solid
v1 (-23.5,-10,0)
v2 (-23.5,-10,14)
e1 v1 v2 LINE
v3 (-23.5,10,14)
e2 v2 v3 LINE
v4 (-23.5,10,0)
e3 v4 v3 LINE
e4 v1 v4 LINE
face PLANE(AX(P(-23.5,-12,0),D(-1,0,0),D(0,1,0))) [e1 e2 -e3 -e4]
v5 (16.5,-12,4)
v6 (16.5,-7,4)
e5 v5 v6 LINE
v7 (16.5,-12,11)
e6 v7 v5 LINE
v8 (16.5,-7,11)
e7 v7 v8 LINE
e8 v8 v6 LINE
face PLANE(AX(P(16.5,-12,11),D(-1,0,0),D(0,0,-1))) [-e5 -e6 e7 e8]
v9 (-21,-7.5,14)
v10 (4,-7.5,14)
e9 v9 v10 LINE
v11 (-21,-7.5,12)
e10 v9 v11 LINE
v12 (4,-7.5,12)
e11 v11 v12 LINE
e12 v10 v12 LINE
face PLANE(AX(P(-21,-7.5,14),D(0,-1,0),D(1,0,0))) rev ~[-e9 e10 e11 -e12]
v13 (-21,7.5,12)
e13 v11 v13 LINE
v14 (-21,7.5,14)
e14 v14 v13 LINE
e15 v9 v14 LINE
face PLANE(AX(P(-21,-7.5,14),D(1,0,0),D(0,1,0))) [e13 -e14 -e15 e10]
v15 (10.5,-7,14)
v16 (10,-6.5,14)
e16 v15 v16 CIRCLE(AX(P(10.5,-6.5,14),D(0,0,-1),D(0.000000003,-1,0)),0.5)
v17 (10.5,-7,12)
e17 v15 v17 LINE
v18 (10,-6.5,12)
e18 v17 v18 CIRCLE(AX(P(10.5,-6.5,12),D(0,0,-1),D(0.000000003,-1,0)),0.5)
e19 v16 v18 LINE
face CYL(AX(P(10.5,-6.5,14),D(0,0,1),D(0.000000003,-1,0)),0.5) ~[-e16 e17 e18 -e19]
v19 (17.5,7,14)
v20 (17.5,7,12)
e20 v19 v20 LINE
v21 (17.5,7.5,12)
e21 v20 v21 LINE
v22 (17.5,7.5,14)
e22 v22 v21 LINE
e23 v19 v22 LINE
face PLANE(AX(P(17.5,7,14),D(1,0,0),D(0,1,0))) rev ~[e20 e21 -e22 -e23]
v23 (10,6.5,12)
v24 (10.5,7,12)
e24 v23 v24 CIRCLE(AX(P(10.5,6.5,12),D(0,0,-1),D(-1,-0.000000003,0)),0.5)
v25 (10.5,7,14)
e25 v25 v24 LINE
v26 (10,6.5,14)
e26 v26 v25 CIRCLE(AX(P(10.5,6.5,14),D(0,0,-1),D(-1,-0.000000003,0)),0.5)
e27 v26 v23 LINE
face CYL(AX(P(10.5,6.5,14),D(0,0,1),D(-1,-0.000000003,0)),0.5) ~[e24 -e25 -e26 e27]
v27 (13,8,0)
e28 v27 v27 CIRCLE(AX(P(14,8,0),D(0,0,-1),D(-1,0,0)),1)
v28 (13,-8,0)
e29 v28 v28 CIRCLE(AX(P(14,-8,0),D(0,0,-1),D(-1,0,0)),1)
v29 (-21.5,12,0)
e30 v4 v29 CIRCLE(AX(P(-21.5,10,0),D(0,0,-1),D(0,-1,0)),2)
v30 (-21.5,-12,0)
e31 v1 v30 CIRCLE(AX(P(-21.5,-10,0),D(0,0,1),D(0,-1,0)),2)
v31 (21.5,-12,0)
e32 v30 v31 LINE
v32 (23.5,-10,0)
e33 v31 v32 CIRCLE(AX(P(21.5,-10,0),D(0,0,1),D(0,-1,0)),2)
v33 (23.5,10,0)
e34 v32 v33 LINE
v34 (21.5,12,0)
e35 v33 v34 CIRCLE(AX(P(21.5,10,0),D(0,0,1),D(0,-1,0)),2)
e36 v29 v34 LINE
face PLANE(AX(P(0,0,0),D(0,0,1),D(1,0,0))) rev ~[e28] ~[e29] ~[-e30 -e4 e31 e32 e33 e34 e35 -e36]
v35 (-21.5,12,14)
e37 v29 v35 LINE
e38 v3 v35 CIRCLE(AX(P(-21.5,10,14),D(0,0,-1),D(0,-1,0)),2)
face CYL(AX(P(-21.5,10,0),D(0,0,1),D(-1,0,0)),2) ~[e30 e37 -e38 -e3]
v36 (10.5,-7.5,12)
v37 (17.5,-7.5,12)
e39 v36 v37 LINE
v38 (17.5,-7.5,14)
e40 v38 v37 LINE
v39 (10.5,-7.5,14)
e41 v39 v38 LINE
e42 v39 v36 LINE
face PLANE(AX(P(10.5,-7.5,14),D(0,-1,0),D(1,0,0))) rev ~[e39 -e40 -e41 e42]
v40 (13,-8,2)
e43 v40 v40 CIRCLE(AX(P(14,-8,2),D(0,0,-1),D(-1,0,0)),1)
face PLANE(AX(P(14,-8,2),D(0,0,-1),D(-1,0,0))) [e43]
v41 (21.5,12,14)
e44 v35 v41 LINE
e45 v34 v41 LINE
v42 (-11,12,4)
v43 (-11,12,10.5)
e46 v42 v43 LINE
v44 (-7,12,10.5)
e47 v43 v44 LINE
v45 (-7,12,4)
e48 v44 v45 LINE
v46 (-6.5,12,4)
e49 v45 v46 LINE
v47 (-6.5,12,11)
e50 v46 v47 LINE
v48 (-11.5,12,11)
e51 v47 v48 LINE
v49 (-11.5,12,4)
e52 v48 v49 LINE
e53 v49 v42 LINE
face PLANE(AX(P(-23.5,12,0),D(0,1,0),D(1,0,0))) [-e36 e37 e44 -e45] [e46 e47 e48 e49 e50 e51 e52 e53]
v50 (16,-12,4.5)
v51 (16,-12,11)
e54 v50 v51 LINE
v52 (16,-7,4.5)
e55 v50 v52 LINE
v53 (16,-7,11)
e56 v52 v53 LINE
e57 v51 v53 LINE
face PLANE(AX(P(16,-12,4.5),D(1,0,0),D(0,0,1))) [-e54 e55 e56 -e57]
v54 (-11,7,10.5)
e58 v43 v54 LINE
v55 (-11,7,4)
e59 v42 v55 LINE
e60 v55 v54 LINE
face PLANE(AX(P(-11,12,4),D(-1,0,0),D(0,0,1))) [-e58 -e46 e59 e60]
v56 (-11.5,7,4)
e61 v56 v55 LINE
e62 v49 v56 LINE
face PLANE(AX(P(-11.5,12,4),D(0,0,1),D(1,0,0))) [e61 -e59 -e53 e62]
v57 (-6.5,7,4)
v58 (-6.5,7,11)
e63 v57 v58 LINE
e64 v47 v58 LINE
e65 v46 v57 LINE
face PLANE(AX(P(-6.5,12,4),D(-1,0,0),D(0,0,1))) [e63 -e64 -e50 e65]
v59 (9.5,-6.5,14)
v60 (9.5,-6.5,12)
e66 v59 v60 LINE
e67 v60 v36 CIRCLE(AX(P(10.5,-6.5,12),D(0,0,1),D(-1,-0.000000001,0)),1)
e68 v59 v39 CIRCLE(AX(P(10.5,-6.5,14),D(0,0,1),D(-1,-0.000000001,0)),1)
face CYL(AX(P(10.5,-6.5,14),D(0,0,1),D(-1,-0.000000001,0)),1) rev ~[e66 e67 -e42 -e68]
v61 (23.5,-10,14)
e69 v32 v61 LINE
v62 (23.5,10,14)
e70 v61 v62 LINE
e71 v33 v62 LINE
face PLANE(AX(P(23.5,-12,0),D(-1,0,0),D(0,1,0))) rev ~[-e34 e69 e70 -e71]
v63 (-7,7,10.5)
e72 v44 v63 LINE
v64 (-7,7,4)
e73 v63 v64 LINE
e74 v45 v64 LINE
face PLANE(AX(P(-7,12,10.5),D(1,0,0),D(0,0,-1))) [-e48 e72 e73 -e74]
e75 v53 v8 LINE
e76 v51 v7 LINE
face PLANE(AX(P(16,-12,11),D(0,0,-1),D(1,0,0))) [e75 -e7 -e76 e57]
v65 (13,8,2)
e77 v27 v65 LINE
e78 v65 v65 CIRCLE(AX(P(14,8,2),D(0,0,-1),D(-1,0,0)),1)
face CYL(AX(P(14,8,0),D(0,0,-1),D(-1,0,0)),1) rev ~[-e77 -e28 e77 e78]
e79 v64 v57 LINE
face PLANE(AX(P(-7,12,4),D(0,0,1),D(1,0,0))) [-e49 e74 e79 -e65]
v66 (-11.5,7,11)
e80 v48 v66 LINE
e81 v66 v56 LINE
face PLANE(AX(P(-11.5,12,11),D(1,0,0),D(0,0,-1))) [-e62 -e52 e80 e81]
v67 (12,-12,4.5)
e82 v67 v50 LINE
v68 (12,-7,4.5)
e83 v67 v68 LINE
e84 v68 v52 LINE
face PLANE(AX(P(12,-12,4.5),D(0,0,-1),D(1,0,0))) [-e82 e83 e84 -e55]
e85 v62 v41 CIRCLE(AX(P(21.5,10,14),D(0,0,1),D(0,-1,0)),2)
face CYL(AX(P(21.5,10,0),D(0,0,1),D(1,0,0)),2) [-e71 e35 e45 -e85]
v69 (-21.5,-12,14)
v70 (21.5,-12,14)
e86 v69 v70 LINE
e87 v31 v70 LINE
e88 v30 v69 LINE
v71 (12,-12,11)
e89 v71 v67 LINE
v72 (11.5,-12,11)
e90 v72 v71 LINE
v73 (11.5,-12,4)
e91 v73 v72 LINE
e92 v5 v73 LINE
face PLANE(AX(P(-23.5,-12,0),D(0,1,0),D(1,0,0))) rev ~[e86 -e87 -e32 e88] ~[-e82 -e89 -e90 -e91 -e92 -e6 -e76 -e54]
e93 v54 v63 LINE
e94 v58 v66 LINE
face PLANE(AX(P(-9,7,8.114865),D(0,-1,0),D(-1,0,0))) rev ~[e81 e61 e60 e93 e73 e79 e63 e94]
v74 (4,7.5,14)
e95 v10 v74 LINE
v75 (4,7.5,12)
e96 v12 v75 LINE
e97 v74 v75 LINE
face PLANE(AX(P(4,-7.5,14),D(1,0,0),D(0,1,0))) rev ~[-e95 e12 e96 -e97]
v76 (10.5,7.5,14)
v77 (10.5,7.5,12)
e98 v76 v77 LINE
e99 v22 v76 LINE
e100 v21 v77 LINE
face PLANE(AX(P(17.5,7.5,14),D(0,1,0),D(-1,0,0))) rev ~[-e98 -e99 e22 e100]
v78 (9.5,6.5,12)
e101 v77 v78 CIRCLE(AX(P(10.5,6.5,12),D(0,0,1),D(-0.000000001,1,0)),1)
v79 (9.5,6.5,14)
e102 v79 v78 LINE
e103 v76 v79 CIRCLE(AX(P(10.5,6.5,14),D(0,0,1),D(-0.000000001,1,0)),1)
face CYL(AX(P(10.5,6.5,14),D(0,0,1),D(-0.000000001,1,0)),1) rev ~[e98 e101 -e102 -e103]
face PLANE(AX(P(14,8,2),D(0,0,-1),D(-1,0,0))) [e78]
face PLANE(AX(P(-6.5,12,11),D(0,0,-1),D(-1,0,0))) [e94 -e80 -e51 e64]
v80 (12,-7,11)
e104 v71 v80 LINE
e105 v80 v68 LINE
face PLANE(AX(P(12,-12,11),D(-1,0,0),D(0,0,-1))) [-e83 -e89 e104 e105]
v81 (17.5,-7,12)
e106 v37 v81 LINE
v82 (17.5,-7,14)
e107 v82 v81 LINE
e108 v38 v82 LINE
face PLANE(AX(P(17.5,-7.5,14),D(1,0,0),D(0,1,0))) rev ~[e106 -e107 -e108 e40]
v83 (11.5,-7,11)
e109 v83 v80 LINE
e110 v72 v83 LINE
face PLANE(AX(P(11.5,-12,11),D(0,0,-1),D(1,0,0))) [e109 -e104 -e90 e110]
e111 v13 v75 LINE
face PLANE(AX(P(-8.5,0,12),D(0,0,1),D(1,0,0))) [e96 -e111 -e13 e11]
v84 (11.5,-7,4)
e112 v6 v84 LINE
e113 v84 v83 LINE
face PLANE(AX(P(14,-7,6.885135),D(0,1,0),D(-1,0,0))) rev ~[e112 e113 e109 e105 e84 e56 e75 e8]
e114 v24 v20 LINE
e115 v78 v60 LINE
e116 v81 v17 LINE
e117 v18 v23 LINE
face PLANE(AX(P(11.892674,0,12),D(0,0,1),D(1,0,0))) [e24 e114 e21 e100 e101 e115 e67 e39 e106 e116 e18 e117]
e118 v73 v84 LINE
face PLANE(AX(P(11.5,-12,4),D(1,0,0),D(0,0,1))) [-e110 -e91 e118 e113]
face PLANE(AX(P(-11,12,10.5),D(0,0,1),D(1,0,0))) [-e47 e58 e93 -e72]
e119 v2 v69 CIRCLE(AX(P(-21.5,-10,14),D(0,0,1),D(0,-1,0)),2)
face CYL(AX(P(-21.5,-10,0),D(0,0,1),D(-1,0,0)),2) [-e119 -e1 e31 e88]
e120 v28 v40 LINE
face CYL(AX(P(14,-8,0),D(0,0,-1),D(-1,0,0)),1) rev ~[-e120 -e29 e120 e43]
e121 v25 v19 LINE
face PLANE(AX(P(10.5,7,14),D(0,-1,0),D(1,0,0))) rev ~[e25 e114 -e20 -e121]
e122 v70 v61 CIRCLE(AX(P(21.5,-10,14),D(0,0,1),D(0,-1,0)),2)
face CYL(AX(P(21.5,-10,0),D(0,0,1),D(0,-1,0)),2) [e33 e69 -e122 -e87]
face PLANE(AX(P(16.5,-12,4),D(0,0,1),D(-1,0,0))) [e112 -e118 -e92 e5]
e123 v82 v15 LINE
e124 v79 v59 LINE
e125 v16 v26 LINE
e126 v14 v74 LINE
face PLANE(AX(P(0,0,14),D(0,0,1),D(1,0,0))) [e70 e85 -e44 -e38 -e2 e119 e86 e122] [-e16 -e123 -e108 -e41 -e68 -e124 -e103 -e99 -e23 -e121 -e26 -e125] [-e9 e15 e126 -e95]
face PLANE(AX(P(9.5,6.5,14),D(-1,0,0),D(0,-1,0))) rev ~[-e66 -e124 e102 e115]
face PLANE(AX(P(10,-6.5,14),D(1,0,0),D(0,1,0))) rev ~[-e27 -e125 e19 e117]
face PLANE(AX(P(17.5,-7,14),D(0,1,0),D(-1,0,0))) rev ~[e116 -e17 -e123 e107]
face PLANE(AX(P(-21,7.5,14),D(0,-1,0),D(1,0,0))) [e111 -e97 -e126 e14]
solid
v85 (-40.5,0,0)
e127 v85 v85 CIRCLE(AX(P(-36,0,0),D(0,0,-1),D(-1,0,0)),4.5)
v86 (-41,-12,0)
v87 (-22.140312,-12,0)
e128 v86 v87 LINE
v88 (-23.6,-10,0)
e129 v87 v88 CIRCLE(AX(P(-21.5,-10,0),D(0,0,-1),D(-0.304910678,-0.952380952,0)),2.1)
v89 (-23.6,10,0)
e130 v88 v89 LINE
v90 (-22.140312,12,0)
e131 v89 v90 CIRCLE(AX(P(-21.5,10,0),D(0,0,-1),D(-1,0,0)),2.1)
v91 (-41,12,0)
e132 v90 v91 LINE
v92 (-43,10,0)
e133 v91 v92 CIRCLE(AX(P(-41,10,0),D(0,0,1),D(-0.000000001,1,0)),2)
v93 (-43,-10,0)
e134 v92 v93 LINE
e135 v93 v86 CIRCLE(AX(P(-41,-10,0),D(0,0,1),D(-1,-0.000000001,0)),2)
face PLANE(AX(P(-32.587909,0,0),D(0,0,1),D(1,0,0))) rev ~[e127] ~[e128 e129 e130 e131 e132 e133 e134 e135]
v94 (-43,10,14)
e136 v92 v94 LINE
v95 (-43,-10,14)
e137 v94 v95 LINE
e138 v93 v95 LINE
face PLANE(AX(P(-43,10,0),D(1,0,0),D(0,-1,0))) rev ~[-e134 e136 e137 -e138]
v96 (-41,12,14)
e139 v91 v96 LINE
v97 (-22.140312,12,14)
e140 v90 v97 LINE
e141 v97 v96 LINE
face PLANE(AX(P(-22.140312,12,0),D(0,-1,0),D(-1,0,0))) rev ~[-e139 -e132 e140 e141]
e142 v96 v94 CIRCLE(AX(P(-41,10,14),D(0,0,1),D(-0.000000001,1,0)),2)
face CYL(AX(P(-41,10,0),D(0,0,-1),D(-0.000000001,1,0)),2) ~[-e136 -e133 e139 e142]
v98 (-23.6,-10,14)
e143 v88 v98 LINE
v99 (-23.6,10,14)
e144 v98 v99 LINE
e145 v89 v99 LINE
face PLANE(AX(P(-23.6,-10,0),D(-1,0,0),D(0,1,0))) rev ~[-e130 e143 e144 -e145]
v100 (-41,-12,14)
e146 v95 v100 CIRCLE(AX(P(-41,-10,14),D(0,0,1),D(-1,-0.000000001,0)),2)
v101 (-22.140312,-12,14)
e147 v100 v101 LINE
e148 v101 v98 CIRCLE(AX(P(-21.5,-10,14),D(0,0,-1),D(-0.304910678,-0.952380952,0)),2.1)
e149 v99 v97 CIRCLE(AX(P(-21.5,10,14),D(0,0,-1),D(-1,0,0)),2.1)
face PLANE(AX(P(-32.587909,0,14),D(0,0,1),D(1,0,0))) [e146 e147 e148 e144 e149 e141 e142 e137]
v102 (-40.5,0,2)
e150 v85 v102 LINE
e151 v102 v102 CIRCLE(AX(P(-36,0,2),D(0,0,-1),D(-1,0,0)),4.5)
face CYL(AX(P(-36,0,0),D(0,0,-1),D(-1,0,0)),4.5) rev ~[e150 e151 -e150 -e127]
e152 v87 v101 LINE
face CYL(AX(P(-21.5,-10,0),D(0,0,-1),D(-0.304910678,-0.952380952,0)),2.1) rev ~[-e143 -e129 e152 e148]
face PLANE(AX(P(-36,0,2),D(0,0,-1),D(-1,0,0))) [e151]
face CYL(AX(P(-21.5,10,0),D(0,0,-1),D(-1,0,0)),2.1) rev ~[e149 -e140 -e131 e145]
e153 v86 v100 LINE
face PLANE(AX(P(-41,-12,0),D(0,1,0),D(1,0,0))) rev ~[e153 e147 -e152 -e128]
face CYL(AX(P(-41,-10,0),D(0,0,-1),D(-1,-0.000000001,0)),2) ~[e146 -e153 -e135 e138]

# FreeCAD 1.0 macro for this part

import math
import FreeCAD as App
import Part
import Sketcher
from FreeCAD import Vector
Q = App.Units.Quantity


def edges_at(feature, points):
    """Names of the edges that pass closest to the given points."""
    edges = feature.Shape.Edges
    near = lambda p: min(range(len(edges)), key=lambda i: edges[i].distToShape(Part.Vertex(*p))[0])
    return sorted({f"Edge{near(p) + 1}" for p in points})


def add_polygon(sketch, points):
    """Adds a closed chain of lines whose ends are joined by coincident constraints."""
    first, n = sketch.GeometryCount, len(points)
    for a, b in zip(points, points[1:] + points[:1]):
        sketch.addGeometry(Part.LineSegment(App.Vector(*a, 0), App.Vector(*b, 0)), False)
    for i in range(n):
        sketch.addConstraint(Sketcher.Constraint("Coincident", first + i, 2, first + (i + 1) % n, 1))

doc = App.newDocument("Part")
body = doc.addObject("PartDesign::Body", "Body")

sketch1 = body.newObject("Sketcher::SketchObject", "Sketch")
sketch1.AttachmentSupport = (doc.getObject("XY_Plane"), [""])
sketch1.MapMode = "FlatFace"
add_polygon(sketch1, [(-24, 12), (-24, -12), (24, -12), (24, 12)])
sketch1.addConstraint([
    Sketcher.Constraint("Vertical", 0),
    Sketcher.Constraint("Horizontal", 1),
    Sketcher.Constraint("Vertical", 2),
    Sketcher.Constraint("Horizontal", 3),
    Sketcher.Constraint("Symmetric", 0, 2, 2, 2, -1, 1),
    Sketcher.Constraint("DistanceX", 1, 1, 1, 2, Q("47 mm")),
    Sketcher.Constraint("DistanceY", 0, 2, 0, 1, Q("24 mm")),
])
pad1 = body.newObject("PartDesign::Pad", "Pad")
pad1.Profile = sketch1
pad1.Length = 14
doc.recompute()

fillet = body.newObject("PartDesign::Fillet", "Fillet")
fillet.Base = (pad1, edges_at(pad1, [
    (-23.5, 12, 7),
    (23.5, 12, 7),
    (23.5, -12, 7),
    (-23.5, -12, 7),
]))
fillet.Radius = 2

sketch2 = body.newObject("Sketcher::SketchObject", "Sketch001")
sketch2.AttachmentSupport = (doc.getObject("XY_Plane"), [""])
sketch2.MapMode = "FlatFace"
sketch2.AttachmentOffset = App.Placement(Vector(0, 0, 14), App.Rotation())
add_polygon(sketch2, [(-21, 7.5), (-21, -7.5), (4, -7.5), (4, 7.5)])
sketch2.addGeometry(Part.LineSegment(Vector(17.5, 7.5, 0), Vector(10.5, 7.5, 0)), False)
sketch2.addGeometry(Part.ArcOfCircle(Part.Circle(Vector(10.5, 6.5, 0), Vector(0, 0, 1), 1), math.radians(90), math.radians(180)), False)
sketch2.addGeometry(Part.LineSegment(Vector(9.5, 6.5, 0), Vector(9.5, -6.5, 0)), False)
sketch2.addGeometry(Part.ArcOfCircle(Part.Circle(Vector(10.5, -6.5, 0), Vector(0, 0, 1), 1), math.radians(-180), math.radians(-90)), False)
sketch2.addGeometry(Part.LineSegment(Vector(10.5, -7.5, 0), Vector(17.5, -7.5, 0)), False)
sketch2.addGeometry(Part.LineSegment(Vector(17.5, -7.5, 0), Vector(17.5, -7, 0)), False)
sketch2.addGeometry(Part.LineSegment(Vector(17.5, -7, 0), Vector(10.5, -7, 0)), False)
sketch2.addGeometry(Part.ArcOfCircle(Part.Circle(Vector(10.5, -6.5, 0), Vector(0, 0, 1), 0.5), math.radians(180), math.radians(270)), False)
sketch2.addGeometry(Part.LineSegment(Vector(10, -6.5, 0), Vector(10, 6.5, 0)), False)
sketch2.addGeometry(Part.ArcOfCircle(Part.Circle(Vector(10.5, 6.5, 0), Vector(0, 0, 1), 0.5), math.radians(90), math.radians(180)), False)
sketch2.addGeometry(Part.LineSegment(Vector(10.5, 7, 0), Vector(17.5, 7, 0)), False)
sketch2.addGeometry(Part.LineSegment(Vector(17.5, 7, 0), Vector(17.5, 7.5, 0)), False)
sketch2.addConstraint([
    Sketcher.Constraint("Tangent", 4, 2, 5, 1),
    Sketcher.Constraint("Tangent", 5, 2, 6, 1),
    Sketcher.Constraint("Tangent", 6, 2, 7, 1),
    Sketcher.Constraint("Tangent", 7, 2, 8, 1),
    Sketcher.Constraint("Coincident", 8, 2, 9, 1),
    Sketcher.Constraint("Coincident", 9, 2, 10, 1),
    Sketcher.Constraint("Tangent", 10, 2, 11, 2),
    Sketcher.Constraint("Tangent", 11, 1, 12, 1),
    Sketcher.Constraint("Tangent", 12, 2, 13, 2),
    Sketcher.Constraint("Tangent", 13, 1, 14, 1),
    Sketcher.Constraint("Coincident", 14, 2, 15, 1),
    Sketcher.Constraint("Coincident", 15, 2, 4, 1),
    Sketcher.Constraint("Vertical", 0),
    Sketcher.Constraint("Horizontal", 1),
    Sketcher.Constraint("Vertical", 2),
    Sketcher.Constraint("Horizontal", 3),
    Sketcher.Constraint("Horizontal", 4),
    Sketcher.Constraint("Vertical", 6),
    Sketcher.Constraint("Horizontal", 8),
    Sketcher.Constraint("Vertical", 9),
    Sketcher.Constraint("Horizontal", 10),
    Sketcher.Constraint("Vertical", 12),
    Sketcher.Constraint("Horizontal", 14),
    Sketcher.Constraint("Vertical", 15),
    Sketcher.Constraint("Coincident", 11, 3, 7, 3),
    Sketcher.Constraint("Coincident", 13, 3, 5, 3),
    Sketcher.Constraint("Equal", 5, 7),
    Sketcher.Constraint("Symmetric", 9, 2, 14, 2, -1),
    Sketcher.Constraint("Horizontal", 3, 2, 4, 2),
    Sketcher.Constraint("Horizontal", 1, 2, 7, 2),
    Sketcher.Constraint("Radius", 5, Q("1 mm")),
    Sketcher.Constraint("Radius", 11, Q("0.5 mm")),
    Sketcher.Constraint("DistanceX", 1, 1, 1, 2, Q("25 mm")),
    Sketcher.Constraint("DistanceX", 4, 2, 4, 1, Q("7 mm")),
    Sketcher.Constraint("DistanceY", 0, 2, 0, 1, Q("15 mm")),
    Sketcher.Constraint("DistanceX", 0, 2, -1, 1, Q("21 mm")),
    Sketcher.Constraint("DistanceX", -1, 1, 11, 1, Q("10 mm")),
])
pocket1 = body.newObject("PartDesign::Pocket", "Pocket")
pocket1.Profile = sketch2
pocket1.Length = 2

sketch3 = body.newObject("Sketcher::SketchObject", "Sketch002")
sketch3.AttachmentSupport = (doc.getObject("XZ_Plane"), [""])
sketch3.MapMode = "FlatFace"
sketch3.AttachmentOffset = App.Placement(Vector(0, 0, -12), App.Rotation())
add_polygon(sketch3, [(-6.5, 11), (-6.5, 4), (-7, 4), (-7, 10.5), (-11, 10.5), (-11, 4), (-11.5, 4), (-11.5, 11)])
sketch3.addConstraint([
    Sketcher.Constraint("Vertical", 0),
    Sketcher.Constraint("Horizontal", 1),
    Sketcher.Constraint("Vertical", 2),
    Sketcher.Constraint("Horizontal", 3),
    Sketcher.Constraint("Vertical", 4),
    Sketcher.Constraint("Horizontal", 5),
    Sketcher.Constraint("Vertical", 6),
    Sketcher.Constraint("Horizontal", 7),
    Sketcher.Constraint("Horizontal", 1, 2, 4, 2),
    Sketcher.Constraint("Equal", 1, 5),
    Sketcher.Constraint("DistanceX", 3, 2, 3, 1, Q("4 mm")),
    Sketcher.Constraint("DistanceX", 7, 1, 7, 2, Q("5 mm")),
    Sketcher.Constraint("DistanceY", 0, 2, 0, 1, Q("7 mm")),
    Sketcher.Constraint("DistanceY", 2, 1, 2, 2, Q("6.5 mm")),
    Sketcher.Constraint("DistanceY", -1, 1, 0, 2, Q("4 mm")),
    Sketcher.Constraint("DistanceX", 1, 2, -1, 1, Q("7 mm")),
])
pocket2 = body.newObject("PartDesign::Pocket", "Pocket001")
pocket2.Profile = sketch3
pocket2.Length = 5
pocket2.Reversed = True

sketch4 = body.newObject("Sketcher::SketchObject", "Sketch003")
sketch4.AttachmentSupport = (doc.getObject("XZ_Plane"), [""])
sketch4.MapMode = "FlatFace"
sketch4.AttachmentOffset = App.Placement(Vector(0, 0, 12), App.Rotation())
add_polygon(sketch4, [(16.5, 4), (16.5, 11), (16, 11), (16, 4.5), (12, 4.5), (12, 11), (11.5, 11), (11.5, 4)])
sketch4.addConstraint([
    Sketcher.Constraint("Vertical", 0),
    Sketcher.Constraint("Horizontal", 1),
    Sketcher.Constraint("Vertical", 2),
    Sketcher.Constraint("Horizontal", 3),
    Sketcher.Constraint("Vertical", 4),
    Sketcher.Constraint("Horizontal", 5),
    Sketcher.Constraint("Vertical", 6),
    Sketcher.Constraint("Horizontal", 7),
    Sketcher.Constraint("Horizontal", 1, 2, 4, 2),
    Sketcher.Constraint("Equal", 1, 5),
    Sketcher.Constraint("DistanceX", 3, 2, 3, 1, Q("4 mm")),
    Sketcher.Constraint("DistanceX", 7, 1, 7, 2, Q("5 mm")),
    Sketcher.Constraint("DistanceY", 0, 1, 0, 2, Q("7 mm")),
    Sketcher.Constraint("DistanceY", 2, 2, 2, 1, Q("6.5 mm")),
    Sketcher.Constraint("DistanceY", -1, 1, 0, 2, Q("11 mm")),
    Sketcher.Constraint("DistanceX", -1, 1, 1, 2, Q("16 mm")),
])
pocket3 = body.newObject("PartDesign::Pocket", "Pocket002")
pocket3.Profile = sketch4
pocket3.Length = 5
body2 = doc.addObject("PartDesign::Body", "Body001")

sketch5 = body2.newObject("Sketcher::SketchObject", "Sketch004")
sketch5.AttachmentSupport = (doc.getObject("XY_Plane001"), [""])
sketch5.MapMode = "FlatFace"
sketch5.addGeometry([
    Part.LineSegment(Vector(-22.1, 12, 0), Vector(-41, 12, 0)),
    Part.ArcOfCircle(Part.Circle(Vector(-41, 10, 0), Vector(0, 0, 1), 2), math.radians(90), math.radians(180)),
    Part.LineSegment(Vector(-43, 10, 0), Vector(-43, -10, 0)),
    Part.ArcOfCircle(Part.Circle(Vector(-41, -10, 0), Vector(0, 0, 1), 2), math.radians(-180), math.radians(-90)),
    Part.LineSegment(Vector(-41, -12, 0), Vector(-22.1, -12, 0)),
    Part.ArcOfCircle(Part.Circle(Vector(-21.5, -10, 0), Vector(0, 0, 1), 2.1), math.radians(180), math.radians(252)),
    Part.LineSegment(Vector(-23.6, -10, 0), Vector(-23.6, 10, 0)),
    Part.ArcOfCircle(Part.Circle(Vector(-21.5, 10, 0), Vector(0, 0, 1), 2.1), math.radians(108), math.radians(180)),
], False)
sketch5.addConstraint([
    Sketcher.Constraint("Tangent", 0, 2, 1, 1),
    Sketcher.Constraint("Tangent", 1, 2, 2, 1),
    Sketcher.Constraint("Tangent", 2, 2, 3, 1),
    Sketcher.Constraint("Tangent", 3, 2, 4, 1),
    Sketcher.Constraint("Coincident", 4, 2, 5, 2),
    Sketcher.Constraint("Tangent", 5, 1, 6, 1),
    Sketcher.Constraint("Tangent", 6, 2, 7, 2),
    Sketcher.Constraint("Coincident", 7, 1, 0, 1),
    Sketcher.Constraint("Horizontal", 0),
    Sketcher.Constraint("Vertical", 2),
    Sketcher.Constraint("Horizontal", 4),
    Sketcher.Constraint("Vertical", 6),
    Sketcher.Constraint("Equal", 1, 3),
    Sketcher.Constraint("Equal", 5, 7),
    Sketcher.Constraint("Symmetric", 4, 2, 7, 1, -1),
    Sketcher.Constraint("Horizontal", 3, 3, 5, 3),
    Sketcher.Constraint("Radius", 1, Q("2 mm")),
    Sketcher.Constraint("Radius", 5, Q("2.1 mm")),
    Sketcher.Constraint("DistanceY", 2, 2, 2, 1, Q("20 mm")),
    Sketcher.Constraint("DistanceX", 1, 3, -1, 1, Q("41 mm")),
    Sketcher.Constraint("DistanceX", 5, 3, -1, 1, Q("21.5 mm")),
])
pad2 = body2.newObject("PartDesign::Pad", "Pad001")
pad2.Profile = sketch5
pad2.Length = 14
body3 = doc.addObject("PartDesign::Body", "Body002")
body3.AllowCompound = True

sketch6 = body3.newObject("Sketcher::SketchObject", "Sketch005")
sketch6.AttachmentSupport = (doc.getObject("XY_Plane002"), [""])
sketch6.MapMode = "FlatFace"
sketch6.addGeometry([
    Part.Circle(Vector(-36, 0, 0), Vector(0, 0, 1), 4.5),
    Part.Circle(Vector(14, 8, 0), Vector(0, 0, 1), 1),
    Part.Circle(Vector(14, -8, 0), Vector(0, 0, 1), 1),
], False)
sketch6.addConstraint([
    Sketcher.Constraint("Equal", 1, 2),
    Sketcher.Constraint("Symmetric", 1, 3, 2, 3, -1),
    Sketcher.Constraint("PointOnObject", 0, 3, -1),
    Sketcher.Constraint("Diameter", 0, Q("9 mm")),
    Sketcher.Constraint("Diameter", 1, Q("2 mm")),
    Sketcher.Constraint("DistanceX", 0, 3, -1, 1, Q("36 mm")),
    Sketcher.Constraint("DistanceX", -1, 1, 1, 3, Q("14 mm")),
    Sketcher.Constraint("DistanceY", -1, 1, 1, 3, Q("8 mm")),
])
pad3 = body3.newObject("PartDesign::Pad", "Pad002")
pad3.Profile = sketch6
pad3.Length = 2
doc.recompute()

body4 = doc.addObject("PartDesign::Body", "Body003")
body4.BaseFeature = body3
boolean = body.newObject("PartDesign::Boolean", "Boolean")
boolean.Type = "Cut"
boolean.addObjects([body4])
doc.recompute()

boolean2 = body2.newObject("PartDesign::Boolean", "Boolean001")
boolean2.Type = "Cut"
boolean2.addObjects([body3])

doc.recompute()
